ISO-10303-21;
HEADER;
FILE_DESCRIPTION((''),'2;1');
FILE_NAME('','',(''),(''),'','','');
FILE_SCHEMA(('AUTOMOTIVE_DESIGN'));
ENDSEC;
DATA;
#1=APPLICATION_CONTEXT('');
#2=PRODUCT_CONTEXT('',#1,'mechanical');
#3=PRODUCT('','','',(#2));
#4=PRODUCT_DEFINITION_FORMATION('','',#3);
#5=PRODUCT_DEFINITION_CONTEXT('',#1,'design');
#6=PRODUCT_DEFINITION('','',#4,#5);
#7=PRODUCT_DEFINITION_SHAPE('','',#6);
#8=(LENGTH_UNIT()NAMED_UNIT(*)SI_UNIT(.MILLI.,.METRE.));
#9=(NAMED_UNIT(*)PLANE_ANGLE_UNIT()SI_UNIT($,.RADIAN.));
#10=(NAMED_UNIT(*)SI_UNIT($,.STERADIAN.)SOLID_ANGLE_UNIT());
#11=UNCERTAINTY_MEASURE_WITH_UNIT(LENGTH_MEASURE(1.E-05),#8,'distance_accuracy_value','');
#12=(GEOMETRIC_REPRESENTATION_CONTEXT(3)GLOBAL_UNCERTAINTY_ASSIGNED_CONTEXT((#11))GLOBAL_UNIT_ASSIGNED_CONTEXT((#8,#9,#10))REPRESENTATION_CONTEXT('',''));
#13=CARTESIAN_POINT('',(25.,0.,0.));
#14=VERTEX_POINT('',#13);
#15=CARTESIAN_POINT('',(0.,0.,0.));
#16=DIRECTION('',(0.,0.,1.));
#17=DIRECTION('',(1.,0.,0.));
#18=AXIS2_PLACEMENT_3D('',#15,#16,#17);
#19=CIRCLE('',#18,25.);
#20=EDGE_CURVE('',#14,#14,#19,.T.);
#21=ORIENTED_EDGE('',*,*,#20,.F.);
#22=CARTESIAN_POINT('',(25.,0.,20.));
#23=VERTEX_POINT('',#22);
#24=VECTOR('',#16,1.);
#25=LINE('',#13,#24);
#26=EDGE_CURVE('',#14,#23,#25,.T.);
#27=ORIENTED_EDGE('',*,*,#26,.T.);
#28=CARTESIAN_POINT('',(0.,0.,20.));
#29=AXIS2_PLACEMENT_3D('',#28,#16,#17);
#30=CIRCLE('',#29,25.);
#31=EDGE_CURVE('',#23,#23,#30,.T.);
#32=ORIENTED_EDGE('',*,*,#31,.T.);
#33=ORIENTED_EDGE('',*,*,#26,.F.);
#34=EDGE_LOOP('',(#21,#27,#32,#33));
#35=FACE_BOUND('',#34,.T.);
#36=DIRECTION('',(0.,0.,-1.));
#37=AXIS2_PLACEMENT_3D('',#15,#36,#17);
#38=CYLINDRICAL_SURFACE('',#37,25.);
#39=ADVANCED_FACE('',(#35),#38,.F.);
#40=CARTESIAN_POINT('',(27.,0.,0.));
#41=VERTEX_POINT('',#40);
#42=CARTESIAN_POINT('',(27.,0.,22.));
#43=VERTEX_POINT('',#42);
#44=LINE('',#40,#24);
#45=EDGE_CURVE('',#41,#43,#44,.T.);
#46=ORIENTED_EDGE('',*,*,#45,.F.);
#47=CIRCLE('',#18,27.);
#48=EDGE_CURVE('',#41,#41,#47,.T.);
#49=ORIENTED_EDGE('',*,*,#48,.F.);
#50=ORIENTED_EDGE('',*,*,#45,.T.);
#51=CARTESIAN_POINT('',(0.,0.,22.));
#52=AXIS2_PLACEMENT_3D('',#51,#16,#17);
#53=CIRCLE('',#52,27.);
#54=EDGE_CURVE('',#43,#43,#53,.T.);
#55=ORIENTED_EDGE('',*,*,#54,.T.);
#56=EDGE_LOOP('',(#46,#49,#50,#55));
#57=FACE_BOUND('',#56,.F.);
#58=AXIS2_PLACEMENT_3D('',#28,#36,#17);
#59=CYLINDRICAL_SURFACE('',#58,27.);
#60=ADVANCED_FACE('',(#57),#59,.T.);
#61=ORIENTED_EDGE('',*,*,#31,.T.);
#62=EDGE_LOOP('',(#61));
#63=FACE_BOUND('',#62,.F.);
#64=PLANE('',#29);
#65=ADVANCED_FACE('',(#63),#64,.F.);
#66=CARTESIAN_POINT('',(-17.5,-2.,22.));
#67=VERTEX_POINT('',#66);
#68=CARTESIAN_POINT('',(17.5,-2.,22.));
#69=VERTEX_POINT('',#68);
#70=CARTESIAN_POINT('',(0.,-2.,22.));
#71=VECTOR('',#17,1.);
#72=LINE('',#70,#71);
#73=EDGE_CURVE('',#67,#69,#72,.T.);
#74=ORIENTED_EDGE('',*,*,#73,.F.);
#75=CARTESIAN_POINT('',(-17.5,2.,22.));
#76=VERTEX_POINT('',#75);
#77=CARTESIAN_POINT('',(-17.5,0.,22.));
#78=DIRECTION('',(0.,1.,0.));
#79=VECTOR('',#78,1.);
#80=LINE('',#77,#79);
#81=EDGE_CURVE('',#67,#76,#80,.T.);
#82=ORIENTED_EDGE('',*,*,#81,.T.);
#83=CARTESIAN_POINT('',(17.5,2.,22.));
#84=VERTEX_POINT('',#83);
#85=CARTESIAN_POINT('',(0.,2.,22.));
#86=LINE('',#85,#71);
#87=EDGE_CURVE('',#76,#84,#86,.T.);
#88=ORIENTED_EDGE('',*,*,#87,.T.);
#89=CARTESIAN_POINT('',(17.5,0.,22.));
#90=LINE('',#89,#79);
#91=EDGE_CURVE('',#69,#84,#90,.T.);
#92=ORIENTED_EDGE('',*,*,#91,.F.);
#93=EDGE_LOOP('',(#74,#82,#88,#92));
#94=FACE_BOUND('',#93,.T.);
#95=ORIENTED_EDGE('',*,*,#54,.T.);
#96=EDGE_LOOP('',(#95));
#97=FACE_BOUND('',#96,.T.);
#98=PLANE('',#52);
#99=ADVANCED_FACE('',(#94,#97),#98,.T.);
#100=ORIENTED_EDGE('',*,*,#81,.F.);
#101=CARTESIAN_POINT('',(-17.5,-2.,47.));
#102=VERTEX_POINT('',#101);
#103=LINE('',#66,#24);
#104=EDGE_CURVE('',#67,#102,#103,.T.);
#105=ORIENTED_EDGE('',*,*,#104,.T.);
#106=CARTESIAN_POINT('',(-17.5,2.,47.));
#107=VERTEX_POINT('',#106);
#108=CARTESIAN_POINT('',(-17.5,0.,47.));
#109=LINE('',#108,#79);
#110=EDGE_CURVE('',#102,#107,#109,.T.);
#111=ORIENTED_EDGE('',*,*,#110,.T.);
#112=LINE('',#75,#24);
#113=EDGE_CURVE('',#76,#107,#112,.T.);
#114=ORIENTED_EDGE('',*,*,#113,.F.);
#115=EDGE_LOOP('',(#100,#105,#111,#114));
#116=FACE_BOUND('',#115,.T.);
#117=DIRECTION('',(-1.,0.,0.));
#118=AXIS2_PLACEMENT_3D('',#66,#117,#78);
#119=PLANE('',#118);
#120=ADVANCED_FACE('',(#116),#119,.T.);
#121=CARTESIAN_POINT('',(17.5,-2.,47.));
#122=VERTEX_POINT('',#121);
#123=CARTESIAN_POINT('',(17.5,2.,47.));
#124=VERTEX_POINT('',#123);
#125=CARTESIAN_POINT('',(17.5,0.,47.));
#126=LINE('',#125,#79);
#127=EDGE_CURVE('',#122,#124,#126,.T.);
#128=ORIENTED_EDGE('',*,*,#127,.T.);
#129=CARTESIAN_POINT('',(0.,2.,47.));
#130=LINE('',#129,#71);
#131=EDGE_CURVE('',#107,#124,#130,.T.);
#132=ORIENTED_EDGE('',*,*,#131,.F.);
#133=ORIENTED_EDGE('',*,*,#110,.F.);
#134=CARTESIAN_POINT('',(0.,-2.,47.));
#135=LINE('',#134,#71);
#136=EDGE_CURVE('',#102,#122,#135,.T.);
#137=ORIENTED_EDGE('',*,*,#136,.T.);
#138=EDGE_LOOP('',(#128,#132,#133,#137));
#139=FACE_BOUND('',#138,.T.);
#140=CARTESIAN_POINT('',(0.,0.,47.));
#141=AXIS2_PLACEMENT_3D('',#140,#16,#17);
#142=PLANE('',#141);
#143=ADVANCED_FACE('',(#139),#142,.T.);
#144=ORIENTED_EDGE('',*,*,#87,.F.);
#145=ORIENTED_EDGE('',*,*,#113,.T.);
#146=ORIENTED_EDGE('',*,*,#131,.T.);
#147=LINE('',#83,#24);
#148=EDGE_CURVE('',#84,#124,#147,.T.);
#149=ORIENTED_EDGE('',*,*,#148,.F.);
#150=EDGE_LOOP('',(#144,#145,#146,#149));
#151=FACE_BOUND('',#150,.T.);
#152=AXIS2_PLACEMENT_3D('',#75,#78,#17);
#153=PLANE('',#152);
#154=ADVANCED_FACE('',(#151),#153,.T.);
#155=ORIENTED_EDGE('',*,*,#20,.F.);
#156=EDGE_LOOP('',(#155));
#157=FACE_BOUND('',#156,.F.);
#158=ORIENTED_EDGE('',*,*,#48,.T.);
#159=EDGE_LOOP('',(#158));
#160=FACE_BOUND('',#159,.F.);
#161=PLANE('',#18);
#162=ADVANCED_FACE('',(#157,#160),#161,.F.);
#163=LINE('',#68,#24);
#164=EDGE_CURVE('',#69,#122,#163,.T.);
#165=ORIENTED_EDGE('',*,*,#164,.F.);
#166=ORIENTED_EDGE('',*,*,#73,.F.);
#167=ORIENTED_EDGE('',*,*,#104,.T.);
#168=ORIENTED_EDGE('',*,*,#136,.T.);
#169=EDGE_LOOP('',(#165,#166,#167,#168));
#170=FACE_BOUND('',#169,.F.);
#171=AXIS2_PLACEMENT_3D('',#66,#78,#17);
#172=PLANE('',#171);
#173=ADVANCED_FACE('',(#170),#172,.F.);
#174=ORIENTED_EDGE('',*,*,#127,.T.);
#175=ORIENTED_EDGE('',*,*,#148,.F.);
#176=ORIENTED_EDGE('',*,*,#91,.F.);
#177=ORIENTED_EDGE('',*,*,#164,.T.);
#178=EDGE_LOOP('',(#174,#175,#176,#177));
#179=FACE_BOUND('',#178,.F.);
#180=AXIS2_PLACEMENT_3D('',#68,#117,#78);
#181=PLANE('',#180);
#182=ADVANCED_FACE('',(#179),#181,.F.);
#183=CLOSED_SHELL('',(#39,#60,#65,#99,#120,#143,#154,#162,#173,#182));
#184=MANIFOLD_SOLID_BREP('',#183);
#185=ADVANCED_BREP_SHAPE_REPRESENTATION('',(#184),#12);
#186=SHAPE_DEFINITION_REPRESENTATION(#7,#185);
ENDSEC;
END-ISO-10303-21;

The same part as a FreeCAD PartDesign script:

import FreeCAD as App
import Part
import Sketcher

V = App.Vector

doc = App.newDocument("Part")
params = doc.addObject("Spreadsheet::Sheet", "Params")
for row, (alias, value) in enumerate([
    ("sketch1_diameter", "54 mm"),
    ("sketch1_diameter2", "50 mm"),
    ("pad1_length", "20 mm"),
    ("sketch2_diameter", "54 mm"),
    ("pad2_length", "2 mm"),
    ("sketch3_width", "35 mm"),
    ("sketch3_height", "4 mm"),
    ("pad3_length", "25 mm"),
], start=1):
    params.set(f"A{row}", alias)
    params.set(f"B{row}", "=" + value)
    params.setAlias(f"B{row}", alias)

body = doc.addObject("PartDesign::Body", "Body")

sketch1 = body.newObject("Sketcher::SketchObject", "Sketch")
sketch1.AttachmentSupport = (doc.getObject("XY_Plane"), [""])
sketch1.MapMode = "FlatFace"
sketch1.addGeometry(Part.Circle(V(0, 0, 0), V(0, 0, 1), 27), False)
sketch1.addGeometry(Part.Circle(V(0, 0, 0), V(0, 0, 1), 25), False)
sketch1.addConstraint(Sketcher.Constraint("Coincident", 0, 3, -1, 1))
sketch1.addConstraint(Sketcher.Constraint("Coincident", 1, 3, -1, 1))
sketch1.addConstraint(Sketcher.Constraint("Diameter", 0, 54.0))
sketch1.addConstraint(Sketcher.Constraint("Diameter", 1, 50.0))
sketch1.setExpression("Constraints[2]", "Params.sketch1_diameter")
sketch1.setExpression("Constraints[3]", "Params.sketch1_diameter2")
pad1 = body.newObject("PartDesign::Pad", "Pad")
pad1.Profile = sketch1
pad1.setExpression("Length", "Params.pad1_length")

sketch2 = body.newObject("Sketcher::SketchObject", "Sketch001")
sketch2.AttachmentSupport = (doc.getObject("XY_Plane"), [""])
sketch2.MapMode = "FlatFace"
sketch2.AttachmentOffset = App.Placement(V(0, 0, 20), App.Rotation())
sketch2.addGeometry(Part.Circle(V(0, 0, 0), V(0, 0, 1), 27), False)
sketch2.addConstraint(Sketcher.Constraint("Coincident", 0, 3, -1, 1))
sketch2.addConstraint(Sketcher.Constraint("Diameter", 0, 54.0))
sketch2.setExpression("Constraints[1]", "Params.sketch2_diameter")
pad2 = body.newObject("PartDesign::Pad", "Pad001")
pad2.Profile = sketch2
pad2.setExpression("Length", "Params.pad2_length")

sketch3 = body.newObject("Sketcher::SketchObject", "Sketch002")
sketch3.AttachmentSupport = (doc.getObject("XY_Plane"), [""])
sketch3.MapMode = "FlatFace"
sketch3.AttachmentOffset = App.Placement(V(0, 0, 22), App.Rotation())
sketch3.addGeometry(Part.LineSegment(V(-17.5, 2, 0), V(-17.5, -2, 0)), False)
sketch3.addGeometry(Part.LineSegment(V(-17.5, -2, 0), V(17.5, -2, 0)), False)
sketch3.addGeometry(Part.LineSegment(V(17.5, -2, 0), V(17.5, 2, 0)), False)
sketch3.addGeometry(Part.LineSegment(V(17.5, 2, 0), V(-17.5, 2, 0)), False)
sketch3.addConstraint(Sketcher.Constraint("Coincident", 0, 2, 1, 1))
sketch3.addConstraint(Sketcher.Constraint("Coincident", 1, 2, 2, 1))
sketch3.addConstraint(Sketcher.Constraint("Coincident", 2, 2, 3, 1))
sketch3.addConstraint(Sketcher.Constraint("Coincident", 3, 2, 0, 1))
sketch3.addConstraint(Sketcher.Constraint("Vertical", 0))
sketch3.addConstraint(Sketcher.Constraint("Horizontal", 1))
sketch3.addConstraint(Sketcher.Constraint("Vertical", 2))
sketch3.addConstraint(Sketcher.Constraint("Horizontal", 3))
sketch3.addConstraint(Sketcher.Constraint("Symmetric", 0, 2, 2, 2, -1, 1))
sketch3.addConstraint(Sketcher.Constraint("DistanceX", 1, 1, 1, 2, 35.0))
sketch3.addConstraint(Sketcher.Constraint("DistanceY", 0, 2, 0, 1, 4.0))
sketch3.setExpression("Constraints[9]", "Params.sketch3_width")
sketch3.setExpression("Constraints[10]", "Params.sketch3_height")
pad3 = body.newObject("PartDesign::Pad", "Pad002")
pad3.Profile = sketch3
pad3.setExpression("Length", "Params.pad3_length")

doc.recompute()
